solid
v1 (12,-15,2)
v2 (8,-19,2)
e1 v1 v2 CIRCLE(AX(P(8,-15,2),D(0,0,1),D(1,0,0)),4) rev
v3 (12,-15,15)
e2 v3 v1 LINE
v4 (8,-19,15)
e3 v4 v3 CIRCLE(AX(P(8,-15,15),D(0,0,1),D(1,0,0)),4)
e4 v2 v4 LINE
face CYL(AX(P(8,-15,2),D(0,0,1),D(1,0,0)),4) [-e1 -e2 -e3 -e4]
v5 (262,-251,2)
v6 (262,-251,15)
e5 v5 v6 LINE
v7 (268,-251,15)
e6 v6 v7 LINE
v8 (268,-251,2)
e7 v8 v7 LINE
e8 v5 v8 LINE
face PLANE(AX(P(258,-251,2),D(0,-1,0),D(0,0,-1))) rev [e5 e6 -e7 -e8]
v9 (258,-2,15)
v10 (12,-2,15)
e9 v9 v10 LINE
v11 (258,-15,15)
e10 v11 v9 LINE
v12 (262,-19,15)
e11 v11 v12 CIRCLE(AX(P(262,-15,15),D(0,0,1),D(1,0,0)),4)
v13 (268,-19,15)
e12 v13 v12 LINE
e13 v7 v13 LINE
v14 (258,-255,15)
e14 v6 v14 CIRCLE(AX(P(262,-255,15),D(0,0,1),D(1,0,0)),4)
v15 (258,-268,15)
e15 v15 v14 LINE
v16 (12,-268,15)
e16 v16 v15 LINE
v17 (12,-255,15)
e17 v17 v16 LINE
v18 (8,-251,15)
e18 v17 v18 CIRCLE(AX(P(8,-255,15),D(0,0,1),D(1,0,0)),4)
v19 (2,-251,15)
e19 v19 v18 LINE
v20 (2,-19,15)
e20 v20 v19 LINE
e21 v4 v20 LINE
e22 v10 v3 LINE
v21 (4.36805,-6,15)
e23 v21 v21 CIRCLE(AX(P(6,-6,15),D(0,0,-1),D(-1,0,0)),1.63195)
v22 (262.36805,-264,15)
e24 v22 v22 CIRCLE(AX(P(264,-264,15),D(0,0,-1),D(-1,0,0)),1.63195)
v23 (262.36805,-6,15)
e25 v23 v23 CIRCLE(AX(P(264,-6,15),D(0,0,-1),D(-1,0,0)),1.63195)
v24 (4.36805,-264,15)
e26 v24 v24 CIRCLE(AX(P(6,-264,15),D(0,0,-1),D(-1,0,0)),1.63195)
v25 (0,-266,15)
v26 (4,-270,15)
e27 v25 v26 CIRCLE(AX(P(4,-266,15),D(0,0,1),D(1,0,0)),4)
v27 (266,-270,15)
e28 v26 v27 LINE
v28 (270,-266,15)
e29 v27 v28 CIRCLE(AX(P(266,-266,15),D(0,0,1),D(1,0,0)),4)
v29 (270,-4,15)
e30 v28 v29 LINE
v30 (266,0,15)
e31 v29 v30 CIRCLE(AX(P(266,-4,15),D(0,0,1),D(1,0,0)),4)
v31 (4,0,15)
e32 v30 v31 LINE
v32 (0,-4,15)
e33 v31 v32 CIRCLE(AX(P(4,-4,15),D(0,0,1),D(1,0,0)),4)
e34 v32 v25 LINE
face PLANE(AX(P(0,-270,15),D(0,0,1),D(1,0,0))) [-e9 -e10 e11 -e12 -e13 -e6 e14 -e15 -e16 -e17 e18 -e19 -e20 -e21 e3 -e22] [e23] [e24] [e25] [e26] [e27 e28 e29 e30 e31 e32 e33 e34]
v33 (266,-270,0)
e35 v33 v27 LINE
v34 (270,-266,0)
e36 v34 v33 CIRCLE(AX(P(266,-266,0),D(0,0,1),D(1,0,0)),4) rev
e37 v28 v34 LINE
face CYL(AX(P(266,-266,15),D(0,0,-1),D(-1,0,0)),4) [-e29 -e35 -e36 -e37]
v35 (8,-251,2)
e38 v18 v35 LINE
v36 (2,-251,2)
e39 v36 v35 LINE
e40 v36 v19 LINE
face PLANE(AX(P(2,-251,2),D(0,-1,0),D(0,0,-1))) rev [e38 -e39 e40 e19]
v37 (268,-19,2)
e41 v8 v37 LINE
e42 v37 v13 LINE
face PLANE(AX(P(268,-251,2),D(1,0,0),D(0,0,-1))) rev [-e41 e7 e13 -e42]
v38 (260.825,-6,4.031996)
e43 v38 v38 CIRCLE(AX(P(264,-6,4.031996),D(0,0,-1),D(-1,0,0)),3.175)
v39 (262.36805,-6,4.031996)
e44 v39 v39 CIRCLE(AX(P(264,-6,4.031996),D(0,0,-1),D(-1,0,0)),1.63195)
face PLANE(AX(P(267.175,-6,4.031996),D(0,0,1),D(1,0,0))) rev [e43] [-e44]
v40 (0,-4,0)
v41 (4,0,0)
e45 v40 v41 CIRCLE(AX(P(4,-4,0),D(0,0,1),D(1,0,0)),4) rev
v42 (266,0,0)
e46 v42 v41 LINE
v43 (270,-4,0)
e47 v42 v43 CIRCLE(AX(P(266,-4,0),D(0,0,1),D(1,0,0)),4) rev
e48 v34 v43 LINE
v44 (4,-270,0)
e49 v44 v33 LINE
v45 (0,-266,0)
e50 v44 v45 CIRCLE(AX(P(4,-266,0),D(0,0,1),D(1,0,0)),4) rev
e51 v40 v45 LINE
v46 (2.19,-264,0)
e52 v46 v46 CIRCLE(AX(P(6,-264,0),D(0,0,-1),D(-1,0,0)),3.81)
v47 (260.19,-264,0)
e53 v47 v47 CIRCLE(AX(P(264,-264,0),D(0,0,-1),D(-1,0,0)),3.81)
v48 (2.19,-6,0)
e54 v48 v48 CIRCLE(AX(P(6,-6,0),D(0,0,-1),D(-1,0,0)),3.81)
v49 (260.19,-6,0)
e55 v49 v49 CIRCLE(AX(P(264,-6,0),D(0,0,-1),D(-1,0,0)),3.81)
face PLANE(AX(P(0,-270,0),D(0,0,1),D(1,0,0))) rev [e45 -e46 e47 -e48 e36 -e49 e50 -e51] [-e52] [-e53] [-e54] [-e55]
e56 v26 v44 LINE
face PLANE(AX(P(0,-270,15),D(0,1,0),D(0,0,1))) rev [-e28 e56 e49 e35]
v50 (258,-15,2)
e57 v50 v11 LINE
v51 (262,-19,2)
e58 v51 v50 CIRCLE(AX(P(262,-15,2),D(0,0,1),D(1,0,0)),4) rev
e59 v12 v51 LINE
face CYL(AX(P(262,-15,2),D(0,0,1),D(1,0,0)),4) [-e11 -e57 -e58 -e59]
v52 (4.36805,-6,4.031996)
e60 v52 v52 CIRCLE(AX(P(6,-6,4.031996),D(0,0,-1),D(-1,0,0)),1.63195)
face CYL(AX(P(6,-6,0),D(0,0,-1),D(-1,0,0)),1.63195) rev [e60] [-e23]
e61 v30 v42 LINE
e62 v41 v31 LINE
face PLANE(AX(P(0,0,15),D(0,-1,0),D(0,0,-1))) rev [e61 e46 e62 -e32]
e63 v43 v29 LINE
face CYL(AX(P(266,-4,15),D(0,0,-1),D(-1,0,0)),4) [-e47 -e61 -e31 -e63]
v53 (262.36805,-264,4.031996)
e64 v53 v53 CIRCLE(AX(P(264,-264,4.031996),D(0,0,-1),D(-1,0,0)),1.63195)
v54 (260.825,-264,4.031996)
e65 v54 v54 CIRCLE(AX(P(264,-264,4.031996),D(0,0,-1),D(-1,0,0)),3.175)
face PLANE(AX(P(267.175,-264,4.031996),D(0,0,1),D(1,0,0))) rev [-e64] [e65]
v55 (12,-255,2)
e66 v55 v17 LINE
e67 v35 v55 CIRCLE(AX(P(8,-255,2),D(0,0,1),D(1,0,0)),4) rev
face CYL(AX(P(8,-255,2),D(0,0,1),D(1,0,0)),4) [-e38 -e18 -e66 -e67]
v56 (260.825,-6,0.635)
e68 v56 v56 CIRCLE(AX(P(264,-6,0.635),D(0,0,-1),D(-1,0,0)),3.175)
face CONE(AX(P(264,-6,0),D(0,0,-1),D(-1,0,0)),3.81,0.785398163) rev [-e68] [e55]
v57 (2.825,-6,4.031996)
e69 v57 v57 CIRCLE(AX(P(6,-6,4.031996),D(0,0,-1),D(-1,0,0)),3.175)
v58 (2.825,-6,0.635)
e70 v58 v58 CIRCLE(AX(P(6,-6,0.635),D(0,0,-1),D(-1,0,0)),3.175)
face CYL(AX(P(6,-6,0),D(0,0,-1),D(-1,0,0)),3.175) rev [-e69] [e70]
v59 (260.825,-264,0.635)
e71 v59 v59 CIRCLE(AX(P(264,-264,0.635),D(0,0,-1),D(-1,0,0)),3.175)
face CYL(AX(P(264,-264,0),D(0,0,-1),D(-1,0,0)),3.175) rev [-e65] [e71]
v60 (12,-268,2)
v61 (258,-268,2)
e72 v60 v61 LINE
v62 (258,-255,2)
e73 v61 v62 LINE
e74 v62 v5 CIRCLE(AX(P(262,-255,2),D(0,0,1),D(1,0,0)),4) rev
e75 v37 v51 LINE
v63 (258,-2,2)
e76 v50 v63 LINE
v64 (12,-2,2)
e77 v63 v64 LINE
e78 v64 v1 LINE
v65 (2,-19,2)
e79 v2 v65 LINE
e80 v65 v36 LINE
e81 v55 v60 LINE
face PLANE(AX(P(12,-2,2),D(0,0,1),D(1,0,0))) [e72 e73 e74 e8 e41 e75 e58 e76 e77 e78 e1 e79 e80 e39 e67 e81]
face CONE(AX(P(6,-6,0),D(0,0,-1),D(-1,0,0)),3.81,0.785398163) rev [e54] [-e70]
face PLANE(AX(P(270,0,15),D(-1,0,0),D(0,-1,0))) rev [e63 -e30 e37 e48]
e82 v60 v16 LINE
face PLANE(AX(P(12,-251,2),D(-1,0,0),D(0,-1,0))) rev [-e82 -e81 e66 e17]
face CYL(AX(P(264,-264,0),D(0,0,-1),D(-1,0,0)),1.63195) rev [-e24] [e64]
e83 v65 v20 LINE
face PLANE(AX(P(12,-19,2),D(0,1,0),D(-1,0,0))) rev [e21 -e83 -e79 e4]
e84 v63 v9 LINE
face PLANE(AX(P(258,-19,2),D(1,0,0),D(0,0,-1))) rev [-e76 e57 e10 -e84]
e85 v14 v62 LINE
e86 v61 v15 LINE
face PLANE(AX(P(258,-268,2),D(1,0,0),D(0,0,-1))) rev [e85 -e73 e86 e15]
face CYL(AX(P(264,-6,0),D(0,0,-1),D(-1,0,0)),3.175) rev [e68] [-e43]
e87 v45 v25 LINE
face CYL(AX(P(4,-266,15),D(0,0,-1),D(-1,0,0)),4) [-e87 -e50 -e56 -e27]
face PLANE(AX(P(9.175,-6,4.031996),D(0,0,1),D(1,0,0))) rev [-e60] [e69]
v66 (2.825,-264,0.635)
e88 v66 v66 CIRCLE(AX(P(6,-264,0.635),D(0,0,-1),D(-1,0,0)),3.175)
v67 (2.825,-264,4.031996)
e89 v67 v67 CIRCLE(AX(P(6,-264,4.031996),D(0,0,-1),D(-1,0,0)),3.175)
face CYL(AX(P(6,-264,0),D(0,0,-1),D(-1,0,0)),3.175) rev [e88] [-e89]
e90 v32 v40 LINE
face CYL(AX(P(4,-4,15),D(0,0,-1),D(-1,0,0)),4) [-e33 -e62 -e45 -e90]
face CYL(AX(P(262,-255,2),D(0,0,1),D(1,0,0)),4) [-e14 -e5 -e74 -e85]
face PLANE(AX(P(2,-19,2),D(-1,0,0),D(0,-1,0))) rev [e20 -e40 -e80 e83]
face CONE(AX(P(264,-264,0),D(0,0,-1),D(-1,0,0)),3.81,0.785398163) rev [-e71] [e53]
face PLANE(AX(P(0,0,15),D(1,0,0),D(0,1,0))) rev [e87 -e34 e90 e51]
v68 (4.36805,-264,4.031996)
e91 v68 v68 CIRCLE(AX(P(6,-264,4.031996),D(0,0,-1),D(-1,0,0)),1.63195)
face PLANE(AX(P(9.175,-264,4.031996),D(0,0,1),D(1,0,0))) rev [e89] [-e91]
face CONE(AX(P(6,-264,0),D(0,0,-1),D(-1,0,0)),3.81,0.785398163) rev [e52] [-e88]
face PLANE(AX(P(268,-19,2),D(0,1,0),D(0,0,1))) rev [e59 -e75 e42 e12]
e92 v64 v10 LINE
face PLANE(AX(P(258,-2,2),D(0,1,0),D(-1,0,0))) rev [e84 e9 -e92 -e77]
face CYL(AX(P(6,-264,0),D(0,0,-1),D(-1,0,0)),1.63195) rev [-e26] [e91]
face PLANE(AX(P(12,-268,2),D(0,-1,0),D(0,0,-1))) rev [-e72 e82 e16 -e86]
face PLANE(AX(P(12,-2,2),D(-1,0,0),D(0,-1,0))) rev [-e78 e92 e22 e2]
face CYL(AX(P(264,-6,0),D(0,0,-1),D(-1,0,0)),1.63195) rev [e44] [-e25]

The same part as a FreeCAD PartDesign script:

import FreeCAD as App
import Part
import Sketcher

V = App.Vector
Q = App.Units.Quantity


def edges_at(feature, points):
    """Names of the edges that pass closest to the given points."""
    edges = feature.Shape.Edges
    near = lambda p: min(range(len(edges)), key=lambda i: edges[i].distToShape(Part.Vertex(*p))[0])
    return sorted({f"Edge{near(p) + 1}" for p in points})


def add_polygon(sketch, points):
    """Adds a closed chain of lines whose ends are joined by coincident constraints."""
    first, n = sketch.GeometryCount, len(points)
    for a, b in zip(points, points[1:] + points[:1]):
        sketch.addGeometry(Part.LineSegment(App.Vector(*a, 0), App.Vector(*b, 0)), False)
    for i in range(n):
        sketch.addConstraint(Sketcher.Constraint("Coincident", first + i, 2, first + (i + 1) % n, 1))

doc = App.newDocument("Part")
params = doc.addObject("Spreadsheet::Sheet", "Params")
for row, (alias, value) in enumerate([
    ("sketch1_width", "270 mm"),
    ("pad1_length", "15 mm"),
    ("fillet_radius", "4 mm"),
    ("sketch2_width", "10 mm"),
    ("sketch2_width2", "246 mm"),
    ("sketch2_height", "17 mm"),
    ("sketch2_height2", "232 mm"),
    ("pocket1_length", "13 mm"),
    ("fillet2_radius", "4 mm"),
    ("sketch3_height", "15 mm"),
    ("sketch3_width", "3.81 mm"),
    ("groove_angle", "360 deg"),
    ("linearpattern_pitch", "258 mm"),
    ("linearpattern2_pitch", "364.867099 mm"),
    ("linearpattern3_pitch", "258 mm"),
], start=1):
    params.set(f"A{row}", alias)
    params.set(f"B{row}", "=" + value)
    params.setAlias(f"B{row}", alias)

body = doc.addObject("PartDesign::Body", "Body")

sketch1 = doc.addObject("Sketcher::SketchObject", "Sketch")
body.addObject(sketch1)
sketch1.AttachmentSupport = (doc.XY_Plane, [""])
sketch1.MapMode = "FlatFace"
add_polygon(sketch1, [(0, 0), (0, -270), (270, -270), (270, 0)])
sketch1.addConstraint([
    Sketcher.Constraint("Vertical", 0),
    Sketcher.Constraint("Horizontal", 1),
    Sketcher.Constraint("Vertical", 2),
    Sketcher.Constraint("Horizontal", 3),
    Sketcher.Constraint("Coincident", 3, 2, -1, 1),
    Sketcher.Constraint("Equal", 3, 0),
    Sketcher.Constraint("DistanceX", 1, 1, 1, 2, Q("270 mm")),
])
sketch1.setExpression("Constraints[10]", "Params.sketch1_width")
pad1 = doc.addObject("PartDesign::Pad", "Pad")
body.addObject(pad1)
pad1.Profile = sketch1
pad1.setExpression("Length", "Params.pad1_length")
doc.recompute()

fillet = doc.addObject("PartDesign::Fillet", "Fillet")
body.addObject(fillet)
fillet.Base = (pad1, edges_at(pad1, [
    (0, 0, 7.5),
    (270, 0, 7.5),
    (270, -270, 7.5),
    (0, -270, 7.5),
]))
fillet.setExpression("Radius", "Params.fillet_radius")

sketch2 = doc.addObject("Sketcher::SketchObject", "Sketch001")
body.addObject(sketch2)
sketch2.AttachmentSupport = (doc.XY_Plane, [""])
sketch2.MapMode = "FlatFace"
sketch2.AttachmentOffset = App.Placement(V(0, 0, 15), App.Rotation())
add_polygon(sketch2, [(12, -2), (12, -19), (2, -19), (2, -251), (12, -251), (12, -268), (258, -268), (258, -251), (268, -251), (268, -19), (258, -19), (258, -2)])
sketch2.addConstraint([
    Sketcher.Constraint("Vertical", 0),
    Sketcher.Constraint("Horizontal", 1),
    Sketcher.Constraint("Vertical", 2),
    Sketcher.Constraint("Horizontal", 3),
    Sketcher.Constraint("Vertical", 4),
    Sketcher.Constraint("Horizontal", 5),
    Sketcher.Constraint("Vertical", 6),
    Sketcher.Constraint("Horizontal", 7),
    Sketcher.Constraint("Vertical", 8),
    Sketcher.Constraint("Horizontal", 9),
    Sketcher.Constraint("Vertical", 10),
    Sketcher.Constraint("Horizontal", 11),
    Sketcher.Constraint("Horizontal", 3, 2, 6, 2),
    Sketcher.Constraint("Horizontal", 1, 2, 8, 2),
    Sketcher.Constraint("Vertical", 0, 2, 3, 2),
    Sketcher.Constraint("Vertical", 6, 2, 9, 2),
    Sketcher.Constraint("Equal", 3, 7),
    Sketcher.Constraint("Equal", 0, 4),
    Sketcher.Constraint("DistanceX", 1, 2, 1, 1, Q("10 mm")),
    Sketcher.Constraint("DistanceX", 5, 1, 5, 2, Q("246 mm")),
    Sketcher.Constraint("DistanceY", 0, 2, 0, 1, Q("17 mm")),
    Sketcher.Constraint("DistanceY", 2, 2, 2, 1, Q("232 mm")),
    Sketcher.Constraint("DistanceX", -1, 1, 0, 2, Q("12 mm")),
    Sketcher.Constraint("DistanceY", 0, 2, -1, 1, Q("19 mm")),
])
sketch2.setExpression("Constraints[30]", "Params.sketch2_width")
sketch2.setExpression("Constraints[31]", "Params.sketch2_width2")
sketch2.setExpression("Constraints[32]", "Params.sketch2_height")
sketch2.setExpression("Constraints[33]", "Params.sketch2_height2")
pocket1 = doc.addObject("PartDesign::Pocket", "Pocket")
body.addObject(pocket1)
pocket1.Profile = sketch2
pocket1.setExpression("Length", "Params.pocket1_length")
doc.recompute()

fillet2 = doc.addObject("PartDesign::Fillet", "Fillet001")
body.addObject(fillet2)
fillet2.Base = (pocket1, edges_at(pocket1, [
    (258, -19, 8.5),
    (258, -251, 8.5),
    (12, -251, 8.5),
    (12, -19, 8.5),
]))
fillet2.setExpression("Radius", "Params.fillet2_radius")

sketch3 = doc.addObject("Sketcher::SketchObject", "Sketch002")
body.addObject(sketch3)
sketch3.AttachmentSupport = (doc.YZ_Plane, [""])
sketch3.MapMode = "FlatFace"
sketch3.AttachmentOffset = App.Placement(V(0, 0, 264), App.Rotation())
add_polygon(sketch3, [(-6, 15), (-6, 0), (-2.2, 0), (-2.8, 0.6), (-2.8, 4), (-4.4, 4), (-4.4, 15)])
sketch3.addGeometry(Part.LineSegment(V(-6, 0, 0), V(-6, 15, 0)), True)
sketch3.addConstraint([
    Sketcher.Constraint("Vertical", 0),
    Sketcher.Constraint("Horizontal", 1),
    Sketcher.Constraint("Vertical", 3),
    Sketcher.Constraint("Horizontal", 4),
    Sketcher.Constraint("Vertical", 5),
    Sketcher.Constraint("Horizontal", 6),
    Sketcher.Constraint("Vertical", 7),
    Sketcher.Constraint("Coincident", 7, 1, 0, 2),
    Sketcher.Constraint("PointOnObject", 0, 2, -1),
    Sketcher.Constraint("Horizontal", 5, 2, 7, 2),
    Sketcher.Constraint("DistanceY", 0, 2, 0, 1, Q("15 mm")),
    Sketcher.Constraint("Angle", 2, Q("135 deg")),
    Sketcher.Constraint("DistanceX", 0, 2, -1, 1, Q("6 mm")),
    Sketcher.Constraint("DistanceX", 1, 1, 1, 2, Q("3.81 mm")),
    Sketcher.Constraint("DistanceX", 2, 2, -1, 1, Q("2.825 mm")),
    Sketcher.Constraint("DistanceX", 4, 2, 4, 1, Q("1.54305 mm")),
    Sketcher.Constraint("DistanceY", 3, 1, 3, 2, Q("3.396996 mm")),
])
sketch3.setExpression("Constraints[17]", "Params.sketch3_height")
sketch3.setExpression("Constraints[20]", "Params.sketch3_width")
groove = doc.addObject("PartDesign::Groove", "Groove")
body.addObject(groove)
groove.Profile = sketch3
groove.ReferenceAxis = (sketch3, ["Axis0"])
groove.setExpression("Angle", "Params.groove_angle")
doc.recompute()

linearpattern = doc.addObject("PartDesign::LinearPattern", "LinearPattern")
body.addObject(linearpattern)
linearpattern.Originals = [groove]
linearpattern.Direction = (doc.X_Axis, [""])
linearpattern.Mode = "offset"
linearpattern.setExpression("Offset", "Params.linearpattern_pitch")
linearpattern.Occurrences = 2
linearpattern.Reversed = True
body.Tip = linearpattern
doc.recompute()

datumline = doc.addObject("PartDesign::Line", "DatumLine")
body.addObject(datumline)
datumline.Placement = App.Placement(V(0, 0, 0), App.Rotation(V(0, 0, 1), V(-0.707106781, -0.707106781, 0)))
linearpattern2 = doc.addObject("PartDesign::LinearPattern", "LinearPattern001")
body.addObject(linearpattern2)
linearpattern2.Originals = [groove]
linearpattern2.Direction = (datumline, [""])
linearpattern2.Mode = "offset"
linearpattern2.setExpression("Offset", "Params.linearpattern2_pitch")
linearpattern2.Occurrences = 2
body.Tip = linearpattern2
doc.recompute()

linearpattern3 = doc.addObject("PartDesign::LinearPattern", "LinearPattern002")
body.addObject(linearpattern3)
linearpattern3.Originals = [groove]
linearpattern3.Direction = (doc.Y_Axis, [""])
linearpattern3.Mode = "offset"
linearpattern3.setExpression("Offset", "Params.linearpattern3_pitch")
linearpattern3.Occurrences = 2
linearpattern3.Reversed = True
body.Tip = linearpattern3

doc.recompute()
